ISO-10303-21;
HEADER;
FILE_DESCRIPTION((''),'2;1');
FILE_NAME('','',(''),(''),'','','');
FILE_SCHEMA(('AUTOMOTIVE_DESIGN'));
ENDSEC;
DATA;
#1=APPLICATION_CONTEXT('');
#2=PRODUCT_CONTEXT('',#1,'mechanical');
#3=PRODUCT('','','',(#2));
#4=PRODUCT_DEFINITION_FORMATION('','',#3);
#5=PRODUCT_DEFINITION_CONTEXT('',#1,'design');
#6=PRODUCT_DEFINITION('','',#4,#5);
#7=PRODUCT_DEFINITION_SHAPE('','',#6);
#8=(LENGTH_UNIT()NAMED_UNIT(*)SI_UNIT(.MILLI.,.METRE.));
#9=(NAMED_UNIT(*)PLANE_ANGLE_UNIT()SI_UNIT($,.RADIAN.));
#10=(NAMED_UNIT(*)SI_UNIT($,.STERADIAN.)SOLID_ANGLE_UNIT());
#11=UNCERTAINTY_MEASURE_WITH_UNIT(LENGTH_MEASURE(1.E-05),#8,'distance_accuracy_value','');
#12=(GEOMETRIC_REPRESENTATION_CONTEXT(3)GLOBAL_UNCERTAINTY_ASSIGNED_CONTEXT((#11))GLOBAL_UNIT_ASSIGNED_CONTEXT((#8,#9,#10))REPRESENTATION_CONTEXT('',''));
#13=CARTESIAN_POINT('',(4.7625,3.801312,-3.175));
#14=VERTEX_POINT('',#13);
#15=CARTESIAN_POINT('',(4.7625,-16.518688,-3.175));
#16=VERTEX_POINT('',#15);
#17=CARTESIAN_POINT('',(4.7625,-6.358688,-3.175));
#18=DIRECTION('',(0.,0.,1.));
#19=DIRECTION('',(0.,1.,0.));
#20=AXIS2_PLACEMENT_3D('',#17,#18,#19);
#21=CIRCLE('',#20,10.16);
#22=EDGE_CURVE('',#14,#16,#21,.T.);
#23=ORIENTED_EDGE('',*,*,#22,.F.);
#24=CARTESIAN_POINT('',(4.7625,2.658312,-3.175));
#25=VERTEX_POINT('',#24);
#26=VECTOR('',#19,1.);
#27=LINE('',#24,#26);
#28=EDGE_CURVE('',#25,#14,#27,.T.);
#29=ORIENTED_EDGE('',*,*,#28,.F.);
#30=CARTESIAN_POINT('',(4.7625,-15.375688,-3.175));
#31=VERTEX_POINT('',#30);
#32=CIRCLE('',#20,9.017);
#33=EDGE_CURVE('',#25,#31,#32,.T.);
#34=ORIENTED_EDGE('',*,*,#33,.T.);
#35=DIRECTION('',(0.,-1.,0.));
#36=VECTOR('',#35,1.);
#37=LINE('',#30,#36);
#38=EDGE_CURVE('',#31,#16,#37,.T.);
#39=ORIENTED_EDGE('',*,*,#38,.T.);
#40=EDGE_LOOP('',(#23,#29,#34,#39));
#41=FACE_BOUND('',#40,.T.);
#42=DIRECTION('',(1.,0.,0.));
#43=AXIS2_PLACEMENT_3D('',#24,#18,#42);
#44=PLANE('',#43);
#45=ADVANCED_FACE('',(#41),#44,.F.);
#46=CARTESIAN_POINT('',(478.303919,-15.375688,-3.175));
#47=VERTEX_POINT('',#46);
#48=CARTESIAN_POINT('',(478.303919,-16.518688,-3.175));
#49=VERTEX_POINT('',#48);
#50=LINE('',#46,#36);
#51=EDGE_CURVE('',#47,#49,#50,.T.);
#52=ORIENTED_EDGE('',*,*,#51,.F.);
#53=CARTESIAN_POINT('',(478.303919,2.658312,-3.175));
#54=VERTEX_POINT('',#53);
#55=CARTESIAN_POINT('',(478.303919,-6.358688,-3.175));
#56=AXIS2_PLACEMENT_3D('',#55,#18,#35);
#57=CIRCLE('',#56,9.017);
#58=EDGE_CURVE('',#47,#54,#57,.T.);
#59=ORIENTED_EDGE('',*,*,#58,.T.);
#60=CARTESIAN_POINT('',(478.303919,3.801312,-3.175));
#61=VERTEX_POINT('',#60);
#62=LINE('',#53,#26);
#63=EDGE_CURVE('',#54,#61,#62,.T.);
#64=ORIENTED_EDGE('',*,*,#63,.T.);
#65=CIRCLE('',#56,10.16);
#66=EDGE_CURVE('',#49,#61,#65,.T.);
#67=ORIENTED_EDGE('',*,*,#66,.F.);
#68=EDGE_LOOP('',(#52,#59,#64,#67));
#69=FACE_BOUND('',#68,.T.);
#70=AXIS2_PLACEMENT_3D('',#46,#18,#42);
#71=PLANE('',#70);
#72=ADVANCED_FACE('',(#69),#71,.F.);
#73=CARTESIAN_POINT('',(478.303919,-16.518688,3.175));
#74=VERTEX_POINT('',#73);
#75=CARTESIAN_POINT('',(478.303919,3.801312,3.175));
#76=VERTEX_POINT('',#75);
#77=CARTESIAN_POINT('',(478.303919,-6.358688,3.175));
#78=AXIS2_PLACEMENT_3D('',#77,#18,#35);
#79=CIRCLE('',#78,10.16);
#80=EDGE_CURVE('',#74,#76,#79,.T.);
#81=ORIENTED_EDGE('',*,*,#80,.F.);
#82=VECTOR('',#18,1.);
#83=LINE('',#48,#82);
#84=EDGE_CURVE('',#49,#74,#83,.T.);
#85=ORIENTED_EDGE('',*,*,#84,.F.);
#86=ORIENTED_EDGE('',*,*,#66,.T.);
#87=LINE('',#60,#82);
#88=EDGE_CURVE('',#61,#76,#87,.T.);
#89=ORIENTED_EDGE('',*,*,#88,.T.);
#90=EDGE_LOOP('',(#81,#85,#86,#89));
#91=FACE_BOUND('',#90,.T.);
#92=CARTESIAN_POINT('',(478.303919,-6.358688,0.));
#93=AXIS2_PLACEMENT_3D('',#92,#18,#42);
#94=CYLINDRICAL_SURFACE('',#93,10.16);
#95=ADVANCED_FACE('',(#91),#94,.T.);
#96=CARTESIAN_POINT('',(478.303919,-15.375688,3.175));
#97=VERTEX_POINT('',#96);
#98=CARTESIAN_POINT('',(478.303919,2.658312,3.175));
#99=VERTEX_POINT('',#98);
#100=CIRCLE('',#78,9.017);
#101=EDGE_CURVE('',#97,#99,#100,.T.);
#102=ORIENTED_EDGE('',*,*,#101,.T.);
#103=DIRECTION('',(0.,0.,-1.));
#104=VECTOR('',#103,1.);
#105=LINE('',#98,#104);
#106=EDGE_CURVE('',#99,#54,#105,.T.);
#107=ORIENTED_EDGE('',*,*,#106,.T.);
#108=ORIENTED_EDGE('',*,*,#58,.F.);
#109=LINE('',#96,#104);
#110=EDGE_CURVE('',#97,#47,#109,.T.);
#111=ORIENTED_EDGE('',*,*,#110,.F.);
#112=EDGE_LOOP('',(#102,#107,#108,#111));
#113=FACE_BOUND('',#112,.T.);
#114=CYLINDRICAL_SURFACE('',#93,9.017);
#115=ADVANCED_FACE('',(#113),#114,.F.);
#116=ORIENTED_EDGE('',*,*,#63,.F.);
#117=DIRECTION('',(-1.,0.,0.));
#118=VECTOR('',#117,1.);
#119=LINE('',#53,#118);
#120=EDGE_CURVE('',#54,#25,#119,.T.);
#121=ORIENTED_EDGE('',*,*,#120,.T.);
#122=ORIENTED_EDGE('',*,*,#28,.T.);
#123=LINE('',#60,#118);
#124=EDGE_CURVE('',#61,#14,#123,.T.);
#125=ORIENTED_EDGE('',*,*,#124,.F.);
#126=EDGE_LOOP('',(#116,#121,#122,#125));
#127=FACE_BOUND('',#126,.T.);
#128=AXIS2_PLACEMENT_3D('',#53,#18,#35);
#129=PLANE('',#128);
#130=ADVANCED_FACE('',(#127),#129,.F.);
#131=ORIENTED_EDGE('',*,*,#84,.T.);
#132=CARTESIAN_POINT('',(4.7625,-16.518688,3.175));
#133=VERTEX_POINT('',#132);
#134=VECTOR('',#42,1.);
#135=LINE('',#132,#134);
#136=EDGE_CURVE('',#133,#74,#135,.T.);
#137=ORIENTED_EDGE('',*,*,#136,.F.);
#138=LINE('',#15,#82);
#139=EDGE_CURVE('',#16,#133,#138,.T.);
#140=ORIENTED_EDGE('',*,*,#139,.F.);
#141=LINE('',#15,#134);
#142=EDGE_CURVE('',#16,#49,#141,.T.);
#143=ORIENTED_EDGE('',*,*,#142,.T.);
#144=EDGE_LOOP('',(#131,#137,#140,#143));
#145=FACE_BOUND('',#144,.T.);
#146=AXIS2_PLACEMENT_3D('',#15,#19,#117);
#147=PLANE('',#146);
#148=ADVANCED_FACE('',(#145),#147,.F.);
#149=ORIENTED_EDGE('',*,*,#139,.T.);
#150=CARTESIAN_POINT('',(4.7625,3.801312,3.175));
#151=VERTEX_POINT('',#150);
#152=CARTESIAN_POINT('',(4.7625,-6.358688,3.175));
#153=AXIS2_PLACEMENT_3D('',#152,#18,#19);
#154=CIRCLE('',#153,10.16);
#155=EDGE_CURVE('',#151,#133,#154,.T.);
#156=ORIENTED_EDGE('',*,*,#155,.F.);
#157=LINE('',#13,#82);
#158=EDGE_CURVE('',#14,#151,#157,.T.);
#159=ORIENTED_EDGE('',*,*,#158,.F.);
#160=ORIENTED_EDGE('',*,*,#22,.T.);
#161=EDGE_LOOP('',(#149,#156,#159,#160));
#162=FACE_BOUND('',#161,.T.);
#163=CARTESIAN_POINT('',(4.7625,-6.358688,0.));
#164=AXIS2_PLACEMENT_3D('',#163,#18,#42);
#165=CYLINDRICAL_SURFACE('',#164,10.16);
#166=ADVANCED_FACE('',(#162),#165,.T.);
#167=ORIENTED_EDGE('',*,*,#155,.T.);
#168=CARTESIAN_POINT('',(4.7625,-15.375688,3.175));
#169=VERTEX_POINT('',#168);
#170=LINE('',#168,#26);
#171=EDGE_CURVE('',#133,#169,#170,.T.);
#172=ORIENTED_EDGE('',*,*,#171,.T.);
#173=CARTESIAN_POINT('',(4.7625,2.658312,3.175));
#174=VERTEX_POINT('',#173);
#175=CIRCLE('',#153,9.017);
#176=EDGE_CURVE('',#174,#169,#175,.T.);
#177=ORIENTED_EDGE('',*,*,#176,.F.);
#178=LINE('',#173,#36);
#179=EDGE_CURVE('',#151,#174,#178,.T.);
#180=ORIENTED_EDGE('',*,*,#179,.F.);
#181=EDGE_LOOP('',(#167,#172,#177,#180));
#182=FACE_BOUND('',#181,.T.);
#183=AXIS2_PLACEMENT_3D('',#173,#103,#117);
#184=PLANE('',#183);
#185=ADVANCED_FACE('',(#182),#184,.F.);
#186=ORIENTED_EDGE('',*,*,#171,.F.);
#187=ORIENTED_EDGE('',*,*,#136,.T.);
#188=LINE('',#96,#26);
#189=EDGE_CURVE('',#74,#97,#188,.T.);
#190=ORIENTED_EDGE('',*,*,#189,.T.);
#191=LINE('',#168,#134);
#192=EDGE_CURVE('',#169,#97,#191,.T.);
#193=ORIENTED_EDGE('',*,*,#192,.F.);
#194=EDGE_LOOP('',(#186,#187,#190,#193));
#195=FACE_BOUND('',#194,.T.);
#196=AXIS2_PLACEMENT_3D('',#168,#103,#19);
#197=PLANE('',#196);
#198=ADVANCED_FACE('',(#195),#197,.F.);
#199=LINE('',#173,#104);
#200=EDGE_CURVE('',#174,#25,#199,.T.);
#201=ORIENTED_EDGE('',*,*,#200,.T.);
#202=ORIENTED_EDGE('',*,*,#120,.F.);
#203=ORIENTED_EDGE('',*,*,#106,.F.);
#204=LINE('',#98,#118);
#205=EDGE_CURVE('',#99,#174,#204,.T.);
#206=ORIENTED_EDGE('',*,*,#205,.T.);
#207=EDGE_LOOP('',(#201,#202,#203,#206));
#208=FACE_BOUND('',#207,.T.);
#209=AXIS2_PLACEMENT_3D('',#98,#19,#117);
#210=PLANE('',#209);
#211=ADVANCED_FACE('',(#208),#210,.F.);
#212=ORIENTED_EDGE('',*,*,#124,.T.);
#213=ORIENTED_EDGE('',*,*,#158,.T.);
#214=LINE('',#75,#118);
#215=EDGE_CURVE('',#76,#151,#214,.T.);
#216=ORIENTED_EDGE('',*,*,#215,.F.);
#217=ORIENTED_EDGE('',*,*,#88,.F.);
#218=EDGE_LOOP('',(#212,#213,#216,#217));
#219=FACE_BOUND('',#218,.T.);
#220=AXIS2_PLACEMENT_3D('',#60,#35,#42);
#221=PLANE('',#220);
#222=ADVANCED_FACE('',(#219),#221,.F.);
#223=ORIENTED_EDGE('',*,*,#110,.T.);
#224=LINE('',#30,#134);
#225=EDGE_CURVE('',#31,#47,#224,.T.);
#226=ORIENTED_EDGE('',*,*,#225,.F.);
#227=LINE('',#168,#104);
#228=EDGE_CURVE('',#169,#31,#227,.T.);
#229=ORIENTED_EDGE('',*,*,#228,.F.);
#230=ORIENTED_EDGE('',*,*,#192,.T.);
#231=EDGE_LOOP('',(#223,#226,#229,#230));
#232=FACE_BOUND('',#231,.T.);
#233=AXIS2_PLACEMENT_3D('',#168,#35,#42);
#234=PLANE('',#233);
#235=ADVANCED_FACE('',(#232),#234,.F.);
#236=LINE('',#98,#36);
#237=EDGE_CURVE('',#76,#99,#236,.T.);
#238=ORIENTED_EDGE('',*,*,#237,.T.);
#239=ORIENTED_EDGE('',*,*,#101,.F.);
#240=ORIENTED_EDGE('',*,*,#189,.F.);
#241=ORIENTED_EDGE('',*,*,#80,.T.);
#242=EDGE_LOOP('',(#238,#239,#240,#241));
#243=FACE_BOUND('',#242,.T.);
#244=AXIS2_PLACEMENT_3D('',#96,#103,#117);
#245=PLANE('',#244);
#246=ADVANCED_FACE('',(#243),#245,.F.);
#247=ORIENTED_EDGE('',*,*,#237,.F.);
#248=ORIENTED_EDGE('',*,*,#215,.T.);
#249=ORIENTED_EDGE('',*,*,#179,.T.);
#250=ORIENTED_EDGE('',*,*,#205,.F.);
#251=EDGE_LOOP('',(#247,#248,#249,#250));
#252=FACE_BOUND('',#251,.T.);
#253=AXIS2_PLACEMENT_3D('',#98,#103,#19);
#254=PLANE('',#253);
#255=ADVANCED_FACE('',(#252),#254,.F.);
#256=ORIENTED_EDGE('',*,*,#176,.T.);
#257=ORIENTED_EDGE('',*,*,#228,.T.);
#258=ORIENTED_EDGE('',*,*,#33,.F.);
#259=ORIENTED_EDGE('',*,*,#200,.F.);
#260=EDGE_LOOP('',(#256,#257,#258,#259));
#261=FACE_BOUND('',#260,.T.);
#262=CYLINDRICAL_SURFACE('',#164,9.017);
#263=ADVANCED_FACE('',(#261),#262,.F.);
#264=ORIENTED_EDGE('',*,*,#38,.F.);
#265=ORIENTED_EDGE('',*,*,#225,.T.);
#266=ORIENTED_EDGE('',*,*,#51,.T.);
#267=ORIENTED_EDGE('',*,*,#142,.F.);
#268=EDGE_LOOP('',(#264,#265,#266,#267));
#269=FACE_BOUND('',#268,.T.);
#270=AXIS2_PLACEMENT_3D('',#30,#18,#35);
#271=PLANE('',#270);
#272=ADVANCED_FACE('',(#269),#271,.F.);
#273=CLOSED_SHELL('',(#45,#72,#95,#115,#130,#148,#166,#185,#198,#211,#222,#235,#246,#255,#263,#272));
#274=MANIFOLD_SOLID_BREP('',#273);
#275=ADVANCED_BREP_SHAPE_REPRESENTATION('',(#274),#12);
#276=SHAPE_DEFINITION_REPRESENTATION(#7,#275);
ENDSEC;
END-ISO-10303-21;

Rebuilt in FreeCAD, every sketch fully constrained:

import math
import FreeCAD as App
import Part
import Sketcher

V = App.Vector
Q = App.Units.Quantity

doc = App.newDocument("Part")
body = doc.addObject("PartDesign::Body", "Body")

sketch1 = body.newObject("Sketcher::SketchObject", "Sketch")
sketch1.AttachmentSupport = (doc.getObject("YZ_Plane"), [""])
sketch1.MapMode = "FlatFace"
sketch1.AttachmentOffset = App.Placement(V(0, 0, 0.1875 * 25.4), App.Rotation())
sketch1.addGeometry([
    Part.LineSegment(V(3.801312, 3.175, 0), V(2.658312, 3.175, 0)),
    Part.LineSegment(V(2.658312, 3.175, 0), V(2.658312, -3.175, 0)),
    Part.LineSegment(V(2.658312, -3.175, 0), V(3.801312, -3.175, 0)),
    Part.LineSegment(V(3.801312, -3.175, 0), V(3.801312, 3.175, 0)),
], False)
sketch1.addConstraint([
    Sketcher.Constraint("Coincident", 0, 2, 1, 1),
    Sketcher.Constraint("Coincident", 1, 2, 2, 1),
    Sketcher.Constraint("Coincident", 2, 2, 3, 1),
    Sketcher.Constraint("Coincident", 3, 2, 0, 1),
    Sketcher.Constraint("Horizontal", 0),
    Sketcher.Constraint("Vertical", 1),
    Sketcher.Constraint("Horizontal", 2),
    Sketcher.Constraint("Vertical", 3),
    Sketcher.Constraint("DistanceY", 1, 2, 1, 1, Q("0.25 in")),
    Sketcher.Constraint("DistanceX", 0, 2, 0, 1, Q("0.045 in")),
    Sketcher.Constraint("DistanceY", -1, 1, 0, 2, Q("0.125 in")),
    Sketcher.Constraint("DistanceX", -1, 1, 0, 2, Q("2.658312 mm")),
])

sketch2 = body.newObject("Sketcher::SketchObject", "Sketch001")
sketch2.AttachmentSupport = (doc.getObject("XY_Plane"), [""])
sketch2.MapMode = "FlatFace"
sketch2.addGeometry([
    Part.LineSegment(V(4.7625, 3.801312, 0), V(478.303919, 3.801312, 0)),
    Part.ArcOfCircle(Part.Circle(V(478.303919, -6.358688, 0), V(0, 0, 1), 10.16), math.radians(-90), math.radians(90)),
    Part.LineSegment(V(478.303919, -16.518688, 0), V(4.7625, -16.518688, 0)),
    Part.ArcOfCircle(Part.Circle(V(4.7625, -6.358688, 0), V(0, 0, 1), 10.16), math.radians(90), math.radians(270)),
], False)
sketch2.addConstraint([
    Sketcher.Constraint("Tangent", 0, 2, 1, 2),
    Sketcher.Constraint("Tangent", 1, 1, 2, 1),
    Sketcher.Constraint("Tangent", 2, 2, 3, 2),
    Sketcher.Constraint("Tangent", 3, 1, 0, 1),
    Sketcher.Constraint("Horizontal", 0),
    Sketcher.Constraint("Horizontal", 2),
    Sketcher.Constraint("Radius", 1, Q("0.4 in")),
    Sketcher.Constraint("DistanceX", -1, 1, 3, 3, Q("0.1875 in")),
    Sketcher.Constraint("DistanceX", 0, 1, 0, 2, Q("473.541419 mm")),
    Sketcher.Constraint("DistanceY", 1, 3, -1, 1, Q("6.358688 mm")),
])
doc.recompute()

additivepipe = body.newObject("PartDesign::AdditivePipe", "AdditivePipe")
additivepipe.Profile = sketch1
additivepipe.Spine = (sketch2, ["Edge1", "Edge2", "Edge3", "Edge4"])

doc.recompute()
